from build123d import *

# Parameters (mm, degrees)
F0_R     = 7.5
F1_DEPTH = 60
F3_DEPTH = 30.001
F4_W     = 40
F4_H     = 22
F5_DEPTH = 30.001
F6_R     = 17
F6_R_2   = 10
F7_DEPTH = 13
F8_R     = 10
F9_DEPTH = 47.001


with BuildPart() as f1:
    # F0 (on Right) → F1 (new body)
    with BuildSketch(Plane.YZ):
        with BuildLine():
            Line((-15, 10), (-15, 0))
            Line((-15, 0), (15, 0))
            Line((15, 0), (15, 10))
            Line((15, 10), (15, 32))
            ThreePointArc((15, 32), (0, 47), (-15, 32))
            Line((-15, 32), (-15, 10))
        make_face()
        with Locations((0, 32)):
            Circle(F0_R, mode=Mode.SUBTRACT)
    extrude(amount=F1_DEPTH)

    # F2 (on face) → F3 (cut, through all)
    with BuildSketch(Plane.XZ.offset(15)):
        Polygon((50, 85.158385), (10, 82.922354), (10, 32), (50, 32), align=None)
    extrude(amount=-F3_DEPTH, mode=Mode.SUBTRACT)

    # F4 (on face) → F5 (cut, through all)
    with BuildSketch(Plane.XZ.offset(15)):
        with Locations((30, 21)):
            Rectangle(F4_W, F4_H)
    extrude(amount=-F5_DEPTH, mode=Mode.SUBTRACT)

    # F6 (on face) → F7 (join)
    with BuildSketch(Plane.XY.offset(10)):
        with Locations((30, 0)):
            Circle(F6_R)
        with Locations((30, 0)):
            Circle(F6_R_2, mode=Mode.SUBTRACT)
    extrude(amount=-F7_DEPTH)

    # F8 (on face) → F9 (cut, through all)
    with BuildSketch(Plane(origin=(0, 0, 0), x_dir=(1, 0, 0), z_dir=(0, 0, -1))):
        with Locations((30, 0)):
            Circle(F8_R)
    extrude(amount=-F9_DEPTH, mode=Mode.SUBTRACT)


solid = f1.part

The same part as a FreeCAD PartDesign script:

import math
import FreeCAD as App
import Part
import Sketcher


def add_polygon(sketch, points):
    """Adds a closed chain of lines whose ends are joined by coincident constraints."""
    first, n = sketch.GeometryCount, len(points)
    for a, b in zip(points, points[1:] + points[:1]):
        sketch.addGeometry(Part.LineSegment(App.Vector(*a, 0), App.Vector(*b, 0)), False)
    for i in range(n):
        sketch.addConstraint(Sketcher.Constraint("Coincident", first + i, 2, first + (i + 1) % n, 1))

doc = App.newDocument("Part")
body = doc.addObject("PartDesign::Body", "Body")

sketch1 = body.newObject("Sketcher::SketchObject", "Sketch")
sketch1.AttachmentSupport = (doc.getObject("YZ_Plane"), [""])
sketch1.MapMode = "FlatFace"
sketch1.addGeometry([
    Part.LineSegment(App.Vector(-15, 0, 0), App.Vector(15, 0, 0)),
    Part.LineSegment(App.Vector(15, 0, 0), App.Vector(15, 32, 0)),
    Part.ArcOfCircle(Part.Circle(App.Vector(0, 32, 0), App.Vector(0, 0, 1), 15), math.radians(0), math.radians(180)),
    Part.LineSegment(App.Vector(-15, 32, 0), App.Vector(-15, 0, 0)),
    Part.Circle(App.Vector(0, 32, 0), App.Vector(0, 0, 1), 8),
], False)
sketch1.addConstraint([
    Sketcher.Constraint("Coincident", 0, 2, 1, 1),
    Sketcher.Constraint("Tangent", 1, 2, 2, 1),
    Sketcher.Constraint("Tangent", 2, 2, 3, 1),
    Sketcher.Constraint("Coincident", 3, 2, 0, 1),
    Sketcher.Constraint("Horizontal", 0),
    Sketcher.Constraint("Vertical", 1),
    Sketcher.Constraint("Vertical", 3),
    Sketcher.Constraint("Coincident", 4, 3, 2, 3),
    Sketcher.Constraint("Symmetric", 0, 2, 3, 2, -1, 1),
    Sketcher.Constraint("Diameter", 4, 15.0),
    Sketcher.Constraint("Radius", 2, 15.0),
    Sketcher.Constraint("DistanceY", 1, 1, 1, 2, 32.0),
])
pad1 = body.newObject("PartDesign::Pad", "Pad")
pad1.Profile = sketch1
pad1.Length = 60

sketch2 = body.newObject("Sketcher::SketchObject", "Sketch001")
sketch2.AttachmentSupport = (doc.getObject("XZ_Plane"), [""])
sketch2.MapMode = "FlatFace"
sketch2.AttachmentOffset = App.Placement(App.Vector(0, 0, 15), App.Rotation())
add_polygon(sketch2, [(50, 85), (10, 83), (10, 32), (50, 32)])
sketch2.addConstraint([
    Sketcher.Constraint("Vertical", 1),
    Sketcher.Constraint("Horizontal", 2),
    Sketcher.Constraint("Vertical", 3),
    Sketcher.Constraint("DistanceX", 2, 1, 2, 2, 40.0),
    Sketcher.Constraint("DistanceX", -1, 1, 0, 2, 10.0),
    Sketcher.Constraint("DistanceY", -1, 1, 1, 2, 32.0),
    Sketcher.Constraint("Distance", 0, 40.062449),
    Sketcher.Constraint("DistanceY", 1, 2, 1, 1, 50.922354),
])
pocket1 = body.newObject("PartDesign::Pocket", "Pocket")
pocket1.Profile = sketch2
pocket1.Type = "ThroughAll"

sketch3 = body.newObject("Sketcher::SketchObject", "Sketch002")
sketch3.AttachmentSupport = (doc.getObject("XZ_Plane"), [""])
sketch3.MapMode = "FlatFace"
sketch3.AttachmentOffset = App.Placement(App.Vector(0, 0, 15), App.Rotation())
add_polygon(sketch3, [(10, 32), (10, 10), (50, 10), (50, 32)])
sketch3.addConstraint([
    Sketcher.Constraint("Vertical", 0),
    Sketcher.Constraint("Horizontal", 1),
    Sketcher.Constraint("Vertical", 2),
    Sketcher.Constraint("Horizontal", 3),
    Sketcher.Constraint("DistanceX", 1, 1, 1, 2, 40.0),
    Sketcher.Constraint("DistanceY", 0, 2, 0, 1, 22.0),
    Sketcher.Constraint("DistanceX", -1, 1, 0, 2, 10.0),
    Sketcher.Constraint("DistanceY", -1, 1, 0, 2, 10.0),
])
pocket2 = body.newObject("PartDesign::Pocket", "Pocket001")
pocket2.Profile = sketch3
pocket2.Type = "ThroughAll"

sketch4 = body.newObject("Sketcher::SketchObject", "Sketch003")
sketch4.AttachmentSupport = (doc.getObject("XY_Plane"), [""])
sketch4.MapMode = "FlatFace"
sketch4.AttachmentOffset = App.Placement(App.Vector(0, 0, 10), App.Rotation())
sketch4.addGeometry([
    Part.Circle(App.Vector(30, 0, 0), App.Vector(0, 0, 1), 17),
    Part.Circle(App.Vector(30, 0, 0), App.Vector(0, 0, 1), 10),
], False)
sketch4.addConstraint([
    Sketcher.Constraint("Coincident", 1, 3, 0, 3),
    Sketcher.Constraint("PointOnObject", 0, 3, -1),
    Sketcher.Constraint("Diameter", 0, 34.0),
    Sketcher.Constraint("Diameter", 1, 20.0),
    Sketcher.Constraint("DistanceX", -1, 1, 0, 3, 30.0),
])
pad2 = body.newObject("PartDesign::Pad", "Pad001")
pad2.Profile = sketch4
pad2.Length = 13
pad2.Reversed = True

sketch5 = body.newObject("Sketcher::SketchObject", "Sketch004")
sketch5.AttachmentSupport = (doc.getObject("XY_Plane"), [""])
sketch5.MapMode = "FlatFace"
sketch5.addGeometry(Part.Circle(App.Vector(30, 0, 0), App.Vector(0, 0, 1), 10), False)
sketch5.addConstraint([
    Sketcher.Constraint("PointOnObject", 0, 3, -1),
    Sketcher.Constraint("Diameter", 0, 20.0),
    Sketcher.Constraint("DistanceX", -1, 1, 0, 3, 30.0),
])
pocket3 = body.newObject("PartDesign::Pocket", "Pocket002")
pocket3.Profile = sketch5
pocket3.Type = "ThroughAll"
pocket3.Reversed = True

doc.recompute()
